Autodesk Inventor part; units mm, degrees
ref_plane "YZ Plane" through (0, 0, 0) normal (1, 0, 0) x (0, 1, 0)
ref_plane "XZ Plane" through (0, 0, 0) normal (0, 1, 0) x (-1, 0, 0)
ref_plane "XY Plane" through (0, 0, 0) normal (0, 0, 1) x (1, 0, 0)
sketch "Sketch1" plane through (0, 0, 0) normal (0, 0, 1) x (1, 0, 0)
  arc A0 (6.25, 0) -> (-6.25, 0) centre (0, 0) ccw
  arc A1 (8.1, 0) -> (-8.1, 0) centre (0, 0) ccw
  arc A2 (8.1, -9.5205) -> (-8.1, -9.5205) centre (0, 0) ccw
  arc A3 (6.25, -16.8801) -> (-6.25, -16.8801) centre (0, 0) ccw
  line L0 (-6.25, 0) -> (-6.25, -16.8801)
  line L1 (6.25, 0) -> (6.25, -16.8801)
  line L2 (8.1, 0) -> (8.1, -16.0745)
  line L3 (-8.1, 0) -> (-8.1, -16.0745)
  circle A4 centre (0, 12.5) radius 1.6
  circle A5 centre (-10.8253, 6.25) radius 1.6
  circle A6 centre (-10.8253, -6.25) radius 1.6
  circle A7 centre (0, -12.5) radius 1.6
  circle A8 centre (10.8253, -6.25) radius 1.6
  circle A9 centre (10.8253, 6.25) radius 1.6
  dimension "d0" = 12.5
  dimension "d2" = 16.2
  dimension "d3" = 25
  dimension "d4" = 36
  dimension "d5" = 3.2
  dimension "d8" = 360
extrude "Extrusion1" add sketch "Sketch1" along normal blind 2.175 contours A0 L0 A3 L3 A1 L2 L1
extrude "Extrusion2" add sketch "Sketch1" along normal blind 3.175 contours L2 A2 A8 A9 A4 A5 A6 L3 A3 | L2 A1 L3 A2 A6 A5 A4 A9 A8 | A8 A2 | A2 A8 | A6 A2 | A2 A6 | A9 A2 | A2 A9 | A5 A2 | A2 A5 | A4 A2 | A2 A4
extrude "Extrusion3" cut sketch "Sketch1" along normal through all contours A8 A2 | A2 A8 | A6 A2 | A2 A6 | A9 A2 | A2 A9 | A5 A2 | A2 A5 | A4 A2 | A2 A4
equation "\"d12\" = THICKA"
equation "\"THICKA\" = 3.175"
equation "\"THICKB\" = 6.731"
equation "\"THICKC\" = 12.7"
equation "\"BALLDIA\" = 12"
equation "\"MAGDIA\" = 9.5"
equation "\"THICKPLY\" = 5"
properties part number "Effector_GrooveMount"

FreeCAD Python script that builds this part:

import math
import FreeCAD as App
import Part
import Sketcher
from FreeCAD import Vector

doc = App.newDocument("Part")
body = doc.addObject("PartDesign::Body", "Body")

# Sketch on XY plane
sketch1 = doc.addObject("Sketcher::SketchObject", "Sketch")
body.addObject(sketch1)
sketch1.AttachmentSupport = (doc.XY_Plane, [""])
sketch1.MapMode = "FlatFace"
sketch1.addGeometry([
    Part.ArcOfCircle(Part.Circle(Vector(0, 0, 0), Vector(0, 0, 1), 6.2), math.radians(0), math.radians(180)),  # 0
    Part.LineSegment(Vector(6.2, 0, 0), Vector(6.2, -16.9, 0)),  # 1
    Part.ArcOfCircle(Part.Circle(Vector(0, 0, 0), Vector(0, 0, 1), 18), math.radians(-69.68), math.radians(-63.26)),  # 2
    Part.LineSegment(Vector(8.1, -16.1, 0), Vector(8.1, 0, 0)),  # 3
    Part.ArcOfCircle(Part.Circle(Vector(0, 0, 0), Vector(0, 0, 1), 8.1), math.radians(0), math.radians(180)),  # 4
    Part.LineSegment(Vector(-8.1, 0, 0), Vector(-8.1, -16.1, 0)),  # 5
    Part.ArcOfCircle(Part.Circle(Vector(0, 0, 0), Vector(0, 0, 1), 18), math.radians(-116.74), math.radians(-110.32)),  # 6
    Part.LineSegment(Vector(-6.2, -16.9, 0), Vector(-6.2, 0, 0)),  # 7
], False)
sketch1.addConstraint([
    Sketcher.Constraint("Tangent", 0, 1, 1, 1),
    Sketcher.Constraint("Coincident", 1, 2, 2, 1),
    Sketcher.Constraint("Coincident", 2, 2, 3, 1),
    Sketcher.Constraint("Tangent", 3, 2, 4, 1),
    Sketcher.Constraint("Tangent", 4, 2, 5, 1),
    Sketcher.Constraint("Coincident", 5, 2, 6, 1),
    Sketcher.Constraint("Coincident", 6, 2, 7, 1),
    Sketcher.Constraint("Tangent", 7, 2, 0, 2),
    Sketcher.Constraint("Vertical", 1),
    Sketcher.Constraint("Vertical", 3),
    Sketcher.Constraint("Vertical", 5),
    Sketcher.Constraint("Vertical", 7),
    Sketcher.Constraint("Coincident", 0, 3, -1, 1),
    Sketcher.Constraint("Coincident", 2, 3, -1, 1),
    Sketcher.Constraint("Coincident", 4, 3, -1, 1),
    Sketcher.Constraint("Coincident", 6, 3, -1, 1),
    Sketcher.Constraint("Equal", 2, 6),
    Sketcher.Constraint("Radius", 2, 18.0),
    Sketcher.Constraint("Radius", 4, 8.1),
    Sketcher.Constraint("Radius", 0, 6.25),
])
pad1 = doc.addObject("PartDesign::Pad", "Pad")
body.addObject(pad1)
pad1.Profile = sketch1
pad1.Length = 2.175

# Sketch on XY plane
sketch2 = doc.addObject("Sketcher::SketchObject", "Sketch001")
body.addObject(sketch2)
sketch2.AttachmentSupport = (doc.XY_Plane, [""])
sketch2.MapMode = "FlatFace"
sketch2.addGeometry([
    Part.ArcOfCircle(Part.Circle(Vector(0, 0, 0), Vector(0, 0, 1), 18), math.radians(-63), math.radians(243)),
    Part.LineSegment(Vector(-8, -16, 0), Vector(-8, 0, 0)),
    Part.ArcOfCircle(Part.Circle(Vector(0, 0, 0), Vector(0, 0, 1), 8), math.radians(0), math.radians(180)),
    Part.LineSegment(Vector(8, 0, 0), Vector(8, -16, 0)),
], False)
sketch2.addConstraint([
    Sketcher.Constraint("Coincident", 0, 2, 1, 1),
    Sketcher.Constraint("Tangent", 1, 2, 2, 2),
    Sketcher.Constraint("Tangent", 2, 1, 3, 1),
    Sketcher.Constraint("Coincident", 3, 2, 0, 1),
    Sketcher.Constraint("Vertical", 1),
    Sketcher.Constraint("Vertical", 3),
    Sketcher.Constraint("Coincident", 0, 3, -1, 1),
    Sketcher.Constraint("Coincident", 2, 3, -1, 1),
    Sketcher.Constraint("Radius", 0, 18.0),
    Sketcher.Constraint("Radius", 2, 8.1),
])
pad2 = doc.addObject("PartDesign::Pad", "Pad001")
body.addObject(pad2)
pad2.Profile = sketch2
pad2.Length = 3.175

# Sketch on XY plane
sketch3 = doc.addObject("Sketcher::SketchObject", "Sketch002")
body.addObject(sketch3)
sketch3.AttachmentSupport = (doc.XY_Plane, [""])
sketch3.MapMode = "FlatFace"
sketch3.addGeometry([
    Part.Circle(Vector(10.8, -6.2, 0), Vector(0, 0, 1), 1.6),  # 0
    Part.Circle(Vector(-10.8, -6.2, 0), Vector(0, 0, 1), 1.6),  # 1
    Part.Circle(Vector(10.8, 6.2, 0), Vector(0, 0, 1), 1.6),  # 2
    Part.Circle(Vector(-10.8, 6.2, 0), Vector(0, 0, 1), 1.6),  # 3
    Part.Circle(Vector(0, 12.5, 0), Vector(0, 0, 1), 1.6),  # 4
], False)
sketch3.addConstraint([
    Sketcher.Constraint("Equal", 0, 1),
    Sketcher.Constraint("Equal", 1, 2),
    Sketcher.Constraint("Equal", 2, 3),
    Sketcher.Constraint("Equal", 3, 4),
    Sketcher.Constraint("Symmetric", 1, 3, 2, 3, -1, 1),
    Sketcher.Constraint("Symmetric", 0, 3, 3, 3, -1, 1),
    Sketcher.Constraint("Symmetric", 0, 3, 1, 3, -2),
    Sketcher.Constraint("PointOnObject", 4, 3, -2),
    Sketcher.Constraint("Diameter", 0, 3.2),
    Sketcher.Constraint("DistanceY", -1, 1, 4, 3, 12.5),
    Sketcher.Constraint("DistanceY", 0, 3, 2, 3, 12.5),
    Sketcher.Constraint("DistanceX", -1, 1, 0, 3, 10.8253),
])
pocket1 = doc.addObject("PartDesign::Pocket", "Pocket")
body.addObject(pocket1)
pocket1.Profile = sketch3
pocket1.Type = "ThroughAll"
pocket1.Reversed = True

doc.recompute()
